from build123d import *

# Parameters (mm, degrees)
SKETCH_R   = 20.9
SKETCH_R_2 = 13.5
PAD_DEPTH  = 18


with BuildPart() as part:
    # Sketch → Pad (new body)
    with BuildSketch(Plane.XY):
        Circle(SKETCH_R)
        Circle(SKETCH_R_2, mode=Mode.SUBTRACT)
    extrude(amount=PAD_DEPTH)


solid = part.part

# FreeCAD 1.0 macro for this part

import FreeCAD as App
import Part
import Sketcher
from FreeCAD import Vector
Q = App.Units.Quantity

doc = App.newDocument("Part")
params = doc.addObject("Spreadsheet::Sheet", "Params")
for row, (alias, value) in enumerate([
    ("sketch1_diameter", "27 mm"),
    ("sketch1_diameter2", "41.8 mm"),
    ("pad1_length", "18 mm"),
], start=1):
    params.set(f"A{row}", alias)
    params.set(f"B{row}", "=" + value)
    params.setAlias(f"B{row}", alias)

body = doc.addObject("PartDesign::Body", "Body")

sketch1 = body.newObject("Sketcher::SketchObject", "Sketch")
sketch1.AttachmentSupport = (doc.getObject("XY_Plane"), [""])
sketch1.MapMode = "FlatFace"
sketch1.addGeometry([
    Part.Circle(Vector(0, 0, 0), Vector(0, 0, 1), 21),
    Part.Circle(Vector(0, 0, 0), Vector(0, 0, 1), 14),
], False)
sketch1.addConstraint([
    Sketcher.Constraint("Coincident", 0, 3, -1, 1),
    Sketcher.Constraint("Coincident", 1, 3, -1, 1),
    Sketcher.Constraint("Diameter", 1, Q("27 mm")),
    Sketcher.Constraint("Diameter", 0, Q("41.8 mm")),
])
sketch1.setExpression("Constraints[2]", "Params.sketch1_diameter")
sketch1.setExpression("Constraints[3]", "Params.sketch1_diameter2")
pad1 = body.newObject("PartDesign::Pad", "Pad")
pad1.Profile = sketch1
pad1.setExpression("Length", "Params.pad1_length")

doc.recompute()
